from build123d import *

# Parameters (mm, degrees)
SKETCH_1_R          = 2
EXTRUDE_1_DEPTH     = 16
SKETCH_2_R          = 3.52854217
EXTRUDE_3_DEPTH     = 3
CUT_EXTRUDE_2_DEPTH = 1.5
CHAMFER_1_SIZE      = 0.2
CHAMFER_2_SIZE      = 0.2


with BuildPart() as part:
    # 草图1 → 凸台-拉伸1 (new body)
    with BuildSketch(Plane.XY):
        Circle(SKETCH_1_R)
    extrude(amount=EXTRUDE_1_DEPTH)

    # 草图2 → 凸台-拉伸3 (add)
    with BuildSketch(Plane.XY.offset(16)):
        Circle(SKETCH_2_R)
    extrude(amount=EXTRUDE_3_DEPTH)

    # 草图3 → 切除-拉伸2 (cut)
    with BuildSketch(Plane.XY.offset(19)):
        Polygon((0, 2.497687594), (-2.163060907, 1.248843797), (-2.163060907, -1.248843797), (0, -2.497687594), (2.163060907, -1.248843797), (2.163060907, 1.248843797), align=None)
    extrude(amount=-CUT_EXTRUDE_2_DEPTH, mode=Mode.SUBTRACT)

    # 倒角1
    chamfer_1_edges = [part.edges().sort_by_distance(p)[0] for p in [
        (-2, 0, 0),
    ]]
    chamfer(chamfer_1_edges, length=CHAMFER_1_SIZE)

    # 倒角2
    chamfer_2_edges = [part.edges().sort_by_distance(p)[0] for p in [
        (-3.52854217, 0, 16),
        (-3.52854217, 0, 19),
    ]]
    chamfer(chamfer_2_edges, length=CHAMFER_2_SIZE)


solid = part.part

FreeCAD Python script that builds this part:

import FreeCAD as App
import Part
import Sketcher

V = App.Vector
Q = App.Units.Quantity


def edges_at(feature, points):
    """Names of the edges that pass closest to the given points."""
    edges = feature.Shape.Edges
    near = lambda p: min(range(len(edges)), key=lambda i: edges[i].distToShape(Part.Vertex(*p))[0])
    return sorted({f"Edge{near(p) + 1}" for p in points})


def add_polygon(sketch, points):
    """Adds a closed chain of lines whose ends are joined by coincident constraints."""
    first, n = sketch.GeometryCount, len(points)
    for a, b in zip(points, points[1:] + points[:1]):
        sketch.addGeometry(Part.LineSegment(App.Vector(*a, 0), App.Vector(*b, 0)), False)
    for i in range(n):
        sketch.addConstraint(Sketcher.Constraint("Coincident", first + i, 2, first + (i + 1) % n, 1))

doc = App.newDocument("Part")
params = doc.addObject("Spreadsheet::Sheet", "Params")
for row, (alias, value) in enumerate([
    ("sketch1_diameter", "4 mm"),
    ("pad1_length", "16 mm"),
    ("pad2_length", "3 mm"),
    ("pocket1_length", "1.5 mm"),
    ("chamfer_size", "0.2 mm"),
    ("chamfer2_size", "0.2 mm"),
], start=1):
    params.set(f"A{row}", alias)
    params.set(f"B{row}", "=" + value)
    params.setAlias(f"B{row}", alias)

body = doc.addObject("PartDesign::Body", "Body")

sketch1 = doc.addObject("Sketcher::SketchObject", "Sketch")
body.addObject(sketch1)
sketch1.AttachmentSupport = (doc.XY_Plane, [""])
sketch1.MapMode = "FlatFace"
sketch1.addGeometry(Part.Circle(V(0, 0, 0), V(0, 0, 1), 2), False)
sketch1.addConstraint([
    Sketcher.Constraint("Coincident", 0, 3, -1, 1),
    Sketcher.Constraint("Diameter", 0, Q("4 mm")),
])
sketch1.setExpression("Constraints[1]", "Params.sketch1_diameter")
pad1 = doc.addObject("PartDesign::Pad", "Pad")
body.addObject(pad1)
pad1.Profile = sketch1
pad1.setExpression("Length", "Params.pad1_length")

sketch2 = doc.addObject("Sketcher::SketchObject", "Sketch001")
body.addObject(sketch2)
sketch2.AttachmentSupport = (doc.XY_Plane, [""])
sketch2.MapMode = "FlatFace"
sketch2.AttachmentOffset = App.Placement(V(0, 0, 16), App.Rotation())
sketch2.addGeometry(Part.Circle(V(0, 0, 0), V(0, 0, 1), 3.5), False)
sketch2.addConstraint([
    Sketcher.Constraint("Coincident", 0, 3, -1, 1),
    Sketcher.Constraint("Diameter", 0, Q("7.057084 mm")),
])
pad2 = doc.addObject("PartDesign::Pad", "Pad001")
body.addObject(pad2)
pad2.Profile = sketch2
pad2.setExpression("Length", "Params.pad2_length")

sketch3 = doc.addObject("Sketcher::SketchObject", "Sketch002")
body.addObject(sketch3)
sketch3.AttachmentSupport = (doc.XY_Plane, [""])
sketch3.MapMode = "FlatFace"
sketch3.AttachmentOffset = App.Placement(V(0, 0, 19), App.Rotation())
add_polygon(sketch3, [(0, 2.5), (-2.2, 1.2), (-2.2, -1.2), (0, -2.5), (2.2, -1.2), (2.2, 1.2)])
sketch3.addConstraint([
    Sketcher.Constraint("Vertical", 1),
    Sketcher.Constraint("Vertical", 4),
    Sketcher.Constraint("Symmetric", 0, 2, 3, 2, -1, 1),
    Sketcher.Constraint("Symmetric", 2, 2, 5, 2, -1, 1),
    Sketcher.Constraint("PointOnObject", 2, 2, -2),
    Sketcher.Constraint("Parallel", 2, 5),
    Sketcher.Constraint("Horizontal", 1, 2, 3, 2),
    Sketcher.Constraint("Angle", 0, Q("-150 deg")),
    Sketcher.Constraint("DistanceY", 1, 2, 1, 1, Q("2.497688 mm")),
    Sketcher.Constraint("DistanceX", 0, 2, -1, 1, Q("2.163061 mm")),
])
pocket1 = doc.addObject("PartDesign::Pocket", "Pocket")
body.addObject(pocket1)
pocket1.Profile = sketch3
pocket1.setExpression("Length", "Params.pocket1_length")
doc.recompute()

chamfer = doc.addObject("PartDesign::Chamfer", "Chamfer")
body.addObject(chamfer)
chamfer.Base = (pocket1, edges_at(pocket1, [(-2, 0, 0)]))
chamfer.setExpression("Size", "Params.chamfer_size")
doc.recompute()

chamfer2 = doc.addObject("PartDesign::Chamfer", "Chamfer001")
body.addObject(chamfer2)
chamfer2.Base = (chamfer, edges_at(chamfer, [(-3.529, 0, 16), (-3.529, 0, 19)]))
chamfer2.setExpression("Size", "Params.chamfer2_size")

doc.recompute()
